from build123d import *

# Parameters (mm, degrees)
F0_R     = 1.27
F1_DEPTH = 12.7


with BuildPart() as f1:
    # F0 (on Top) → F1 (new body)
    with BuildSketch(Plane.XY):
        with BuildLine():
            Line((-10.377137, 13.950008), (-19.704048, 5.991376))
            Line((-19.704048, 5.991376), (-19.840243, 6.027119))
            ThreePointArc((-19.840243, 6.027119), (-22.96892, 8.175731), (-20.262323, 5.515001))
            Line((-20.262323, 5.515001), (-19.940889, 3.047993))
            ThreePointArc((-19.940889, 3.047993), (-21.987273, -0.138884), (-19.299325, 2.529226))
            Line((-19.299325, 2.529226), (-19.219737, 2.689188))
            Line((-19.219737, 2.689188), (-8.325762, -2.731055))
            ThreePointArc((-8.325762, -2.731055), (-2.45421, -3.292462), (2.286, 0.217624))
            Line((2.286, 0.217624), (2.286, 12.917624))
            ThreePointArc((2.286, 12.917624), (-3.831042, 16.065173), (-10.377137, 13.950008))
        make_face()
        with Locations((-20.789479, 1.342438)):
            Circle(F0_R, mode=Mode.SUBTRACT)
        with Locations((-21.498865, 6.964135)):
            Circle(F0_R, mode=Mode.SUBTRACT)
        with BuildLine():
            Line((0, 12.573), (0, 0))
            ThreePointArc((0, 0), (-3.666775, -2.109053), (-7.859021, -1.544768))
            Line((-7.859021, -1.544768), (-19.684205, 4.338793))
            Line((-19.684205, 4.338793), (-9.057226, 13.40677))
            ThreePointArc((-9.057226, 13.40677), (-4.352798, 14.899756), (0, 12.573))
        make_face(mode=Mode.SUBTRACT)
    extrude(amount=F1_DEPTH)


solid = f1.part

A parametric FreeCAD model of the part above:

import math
import FreeCAD as App
import Part
import Sketcher

V = App.Vector
Q = App.Units.Quantity

doc = App.newDocument("Part")
body = doc.addObject("PartDesign::Body", "Body")

# Sketch on XY plane
sketch1 = body.newObject("Sketcher::SketchObject", "Sketch")
sketch1.AttachmentSupport = (doc.getObject("XY_Plane"), [""])
sketch1.MapMode = "FlatFace"
sketch1.addGeometry([
    Part.LineSegment(V(-10.38, 13.95, 0), V(-19.7, 5.99, 0)),  # 0
    Part.LineSegment(V(-19.7, 5.99, 0), V(-19.84, 6.03, 0)),  # 1
    Part.ArcOfCircle(Part.Circle(V(-21.5, 6.96, 0), V(0, 0, 1), 1.91), math.radians(-29), math.radians(310)),  # 2
    Part.LineSegment(V(-20.26, 5.52, 0), V(-19.94, 3.05, 0)),  # 3
    Part.ArcOfCircle(Part.Circle(V(-20.79, 1.34, 0), V(0, 0, 1), 1.9), math.radians(64), math.radians(399)),  # 4
    Part.LineSegment(V(-19.3, 2.53, 0), V(-19.22, 2.69, 0)),  # 5
    Part.LineSegment(V(-19.22, 2.69, 0), V(-8.33, -2.73, 0)),  # 6
    Part.ArcOfCircle(Part.Circle(V(-4.66, 4.64, 0), V(0, 0, 1), 8.23), math.radians(-116), math.radians(-32)),  # 7
    Part.LineSegment(V(2.29, 0.22, 0), V(2.29, 12.92, 0)),  # 8
    Part.ArcOfCircle(Part.Circle(V(-4.56, 7.13, 0), V(0, 0, 1), 8.96), math.radians(40), math.radians(130)),  # 9
    Part.Circle(V(-20.79, 1.34, 0), V(0, 0, 1), 1.27),  # 10
    Part.Circle(V(-21.5, 6.96, 0), V(0, 0, 1), 1.27),  # 11
    Part.ArcOfCircle(Part.Circle(V(-4.93, 8.58, 0), V(0, 0, 1), 6.35), math.radians(39), math.radians(130)),  # 12
    Part.LineSegment(V(0, 12.57, 0), V(0, 0, 0)),  # 13
    Part.ArcOfCircle(Part.Circle(V(-4.93, 4.34, 0), V(0, 0, 1), 6.57), math.radians(-116), math.radians(-41)),  # 14
    Part.LineSegment(V(-7.86, -1.54, 0), V(-19.68, 4.34, 0)),  # 15
    Part.LineSegment(V(-19.68, 4.34, 0), V(-9.06, 13.41, 0)),  # 16
], False)
sketch1.addConstraint([
    Sketcher.Constraint("Coincident", 0, 2, 1, 1),
    Sketcher.Constraint("Coincident", 1, 2, 2, 1),
    Sketcher.Constraint("Coincident", 2, 2, 3, 1),
    Sketcher.Constraint("Coincident", 3, 2, 4, 1),
    Sketcher.Constraint("Coincident", 4, 2, 5, 1),
    Sketcher.Constraint("Coincident", 5, 2, 6, 1),
    Sketcher.Constraint("Tangent", 6, 2, 7, 1),
    Sketcher.Constraint("Coincident", 7, 2, 8, 1),
    Sketcher.Constraint("Coincident", 8, 2, 9, 1),
    Sketcher.Constraint("Tangent", 9, 2, 0, 1),
    Sketcher.Constraint("Coincident", 12, 1, 13, 1),
    Sketcher.Constraint("Coincident", 13, 2, 14, 2),
    Sketcher.Constraint("Tangent", 14, 1, 15, 1),
    Sketcher.Constraint("Coincident", 15, 2, 16, 1),
    Sketcher.Constraint("Tangent", 16, 2, 12, 2),
    Sketcher.Constraint("Vertical", 8),
    Sketcher.Constraint("Vertical", 13),
    Sketcher.Constraint("Coincident", 13, 2, -1, 1),
    Sketcher.Constraint("Coincident", 10, 3, 4, 3),
    Sketcher.Constraint("Coincident", 11, 3, 2, 3),
    Sketcher.Constraint("Equal", 2, 4),
    Sketcher.Constraint("Equal", 10, 11),
    Sketcher.Constraint("Perpendicular", 5, 6),
    Sketcher.Constraint("Parallel", 6, 15),
    Sketcher.Constraint("Parallel", 0, 16),
    Sketcher.Constraint("Diameter", 10, Q("0.1 in")),
    Sketcher.Constraint("DistanceY", 8, 1, 8, 2, Q("0.5 in")),
    Sketcher.Constraint("Radius", 2, Q("0.075 in")),
    Sketcher.Constraint("Distance", 15, Q("0.52 in")),
    Sketcher.Constraint("Distance", 16, Q("0.55 in")),
    Sketcher.Constraint("DistanceY", 13, 2, 13, 1, Q("0.495 in")),
    Sketcher.Constraint("DistanceX", -1, 1, 7, 2, Q("0.09 in")),
    Sketcher.Constraint("Radius", 12, 6.350711),
    Sketcher.Constraint("Radius", 14, 6.567589),
    Sketcher.Constraint("Radius", 7, 8.232922),
    Sketcher.Constraint("Radius", 9, 8.962824),
    Sketcher.Constraint("DistanceX", 11, 3, 1, 2, Q("0.0653001 in")),
    Sketcher.Constraint("DistanceY", 6, 2, 14, 3, Q("0.2782001 in")),
    Sketcher.Constraint("DistanceY", -1, 1, 2, 2, 5.515001),
    Sketcher.Constraint("DistanceY", 4, 3, 2, 3, 5.621698),
    Sketcher.Constraint("DistanceX", 6, 2, 14, 3, 3.3923),
    Sketcher.Constraint("DistanceX", 9, 2, 9, 3, 5.817801),
    Sketcher.Constraint("DistanceY", 3, 2, 15, 2, 1.2908),
    Sketcher.Constraint("Distance", 0, 12.260958),
    Sketcher.Constraint("Distance", 3, 2.48786),
    Sketcher.Constraint("DistanceX", 4, 3, -1, 1, 20.789478),
    Sketcher.Constraint("DistanceY", -1, 1, 7, 3, 4.63992),
    Sketcher.Constraint("DistanceX", 0, 2, -1, 1, 19.704048),
    Sketcher.Constraint("DistanceY", -1, 1, 1, 2, 6.027119),
    Sketcher.Constraint("DistanceY", -1, 1, 5, 2, 2.689188),
])
pad1 = body.newObject("PartDesign::Pad", "Pad")
pad1.Profile = sketch1
pad1.Length = Q("0.5 in")

doc.recompute()
